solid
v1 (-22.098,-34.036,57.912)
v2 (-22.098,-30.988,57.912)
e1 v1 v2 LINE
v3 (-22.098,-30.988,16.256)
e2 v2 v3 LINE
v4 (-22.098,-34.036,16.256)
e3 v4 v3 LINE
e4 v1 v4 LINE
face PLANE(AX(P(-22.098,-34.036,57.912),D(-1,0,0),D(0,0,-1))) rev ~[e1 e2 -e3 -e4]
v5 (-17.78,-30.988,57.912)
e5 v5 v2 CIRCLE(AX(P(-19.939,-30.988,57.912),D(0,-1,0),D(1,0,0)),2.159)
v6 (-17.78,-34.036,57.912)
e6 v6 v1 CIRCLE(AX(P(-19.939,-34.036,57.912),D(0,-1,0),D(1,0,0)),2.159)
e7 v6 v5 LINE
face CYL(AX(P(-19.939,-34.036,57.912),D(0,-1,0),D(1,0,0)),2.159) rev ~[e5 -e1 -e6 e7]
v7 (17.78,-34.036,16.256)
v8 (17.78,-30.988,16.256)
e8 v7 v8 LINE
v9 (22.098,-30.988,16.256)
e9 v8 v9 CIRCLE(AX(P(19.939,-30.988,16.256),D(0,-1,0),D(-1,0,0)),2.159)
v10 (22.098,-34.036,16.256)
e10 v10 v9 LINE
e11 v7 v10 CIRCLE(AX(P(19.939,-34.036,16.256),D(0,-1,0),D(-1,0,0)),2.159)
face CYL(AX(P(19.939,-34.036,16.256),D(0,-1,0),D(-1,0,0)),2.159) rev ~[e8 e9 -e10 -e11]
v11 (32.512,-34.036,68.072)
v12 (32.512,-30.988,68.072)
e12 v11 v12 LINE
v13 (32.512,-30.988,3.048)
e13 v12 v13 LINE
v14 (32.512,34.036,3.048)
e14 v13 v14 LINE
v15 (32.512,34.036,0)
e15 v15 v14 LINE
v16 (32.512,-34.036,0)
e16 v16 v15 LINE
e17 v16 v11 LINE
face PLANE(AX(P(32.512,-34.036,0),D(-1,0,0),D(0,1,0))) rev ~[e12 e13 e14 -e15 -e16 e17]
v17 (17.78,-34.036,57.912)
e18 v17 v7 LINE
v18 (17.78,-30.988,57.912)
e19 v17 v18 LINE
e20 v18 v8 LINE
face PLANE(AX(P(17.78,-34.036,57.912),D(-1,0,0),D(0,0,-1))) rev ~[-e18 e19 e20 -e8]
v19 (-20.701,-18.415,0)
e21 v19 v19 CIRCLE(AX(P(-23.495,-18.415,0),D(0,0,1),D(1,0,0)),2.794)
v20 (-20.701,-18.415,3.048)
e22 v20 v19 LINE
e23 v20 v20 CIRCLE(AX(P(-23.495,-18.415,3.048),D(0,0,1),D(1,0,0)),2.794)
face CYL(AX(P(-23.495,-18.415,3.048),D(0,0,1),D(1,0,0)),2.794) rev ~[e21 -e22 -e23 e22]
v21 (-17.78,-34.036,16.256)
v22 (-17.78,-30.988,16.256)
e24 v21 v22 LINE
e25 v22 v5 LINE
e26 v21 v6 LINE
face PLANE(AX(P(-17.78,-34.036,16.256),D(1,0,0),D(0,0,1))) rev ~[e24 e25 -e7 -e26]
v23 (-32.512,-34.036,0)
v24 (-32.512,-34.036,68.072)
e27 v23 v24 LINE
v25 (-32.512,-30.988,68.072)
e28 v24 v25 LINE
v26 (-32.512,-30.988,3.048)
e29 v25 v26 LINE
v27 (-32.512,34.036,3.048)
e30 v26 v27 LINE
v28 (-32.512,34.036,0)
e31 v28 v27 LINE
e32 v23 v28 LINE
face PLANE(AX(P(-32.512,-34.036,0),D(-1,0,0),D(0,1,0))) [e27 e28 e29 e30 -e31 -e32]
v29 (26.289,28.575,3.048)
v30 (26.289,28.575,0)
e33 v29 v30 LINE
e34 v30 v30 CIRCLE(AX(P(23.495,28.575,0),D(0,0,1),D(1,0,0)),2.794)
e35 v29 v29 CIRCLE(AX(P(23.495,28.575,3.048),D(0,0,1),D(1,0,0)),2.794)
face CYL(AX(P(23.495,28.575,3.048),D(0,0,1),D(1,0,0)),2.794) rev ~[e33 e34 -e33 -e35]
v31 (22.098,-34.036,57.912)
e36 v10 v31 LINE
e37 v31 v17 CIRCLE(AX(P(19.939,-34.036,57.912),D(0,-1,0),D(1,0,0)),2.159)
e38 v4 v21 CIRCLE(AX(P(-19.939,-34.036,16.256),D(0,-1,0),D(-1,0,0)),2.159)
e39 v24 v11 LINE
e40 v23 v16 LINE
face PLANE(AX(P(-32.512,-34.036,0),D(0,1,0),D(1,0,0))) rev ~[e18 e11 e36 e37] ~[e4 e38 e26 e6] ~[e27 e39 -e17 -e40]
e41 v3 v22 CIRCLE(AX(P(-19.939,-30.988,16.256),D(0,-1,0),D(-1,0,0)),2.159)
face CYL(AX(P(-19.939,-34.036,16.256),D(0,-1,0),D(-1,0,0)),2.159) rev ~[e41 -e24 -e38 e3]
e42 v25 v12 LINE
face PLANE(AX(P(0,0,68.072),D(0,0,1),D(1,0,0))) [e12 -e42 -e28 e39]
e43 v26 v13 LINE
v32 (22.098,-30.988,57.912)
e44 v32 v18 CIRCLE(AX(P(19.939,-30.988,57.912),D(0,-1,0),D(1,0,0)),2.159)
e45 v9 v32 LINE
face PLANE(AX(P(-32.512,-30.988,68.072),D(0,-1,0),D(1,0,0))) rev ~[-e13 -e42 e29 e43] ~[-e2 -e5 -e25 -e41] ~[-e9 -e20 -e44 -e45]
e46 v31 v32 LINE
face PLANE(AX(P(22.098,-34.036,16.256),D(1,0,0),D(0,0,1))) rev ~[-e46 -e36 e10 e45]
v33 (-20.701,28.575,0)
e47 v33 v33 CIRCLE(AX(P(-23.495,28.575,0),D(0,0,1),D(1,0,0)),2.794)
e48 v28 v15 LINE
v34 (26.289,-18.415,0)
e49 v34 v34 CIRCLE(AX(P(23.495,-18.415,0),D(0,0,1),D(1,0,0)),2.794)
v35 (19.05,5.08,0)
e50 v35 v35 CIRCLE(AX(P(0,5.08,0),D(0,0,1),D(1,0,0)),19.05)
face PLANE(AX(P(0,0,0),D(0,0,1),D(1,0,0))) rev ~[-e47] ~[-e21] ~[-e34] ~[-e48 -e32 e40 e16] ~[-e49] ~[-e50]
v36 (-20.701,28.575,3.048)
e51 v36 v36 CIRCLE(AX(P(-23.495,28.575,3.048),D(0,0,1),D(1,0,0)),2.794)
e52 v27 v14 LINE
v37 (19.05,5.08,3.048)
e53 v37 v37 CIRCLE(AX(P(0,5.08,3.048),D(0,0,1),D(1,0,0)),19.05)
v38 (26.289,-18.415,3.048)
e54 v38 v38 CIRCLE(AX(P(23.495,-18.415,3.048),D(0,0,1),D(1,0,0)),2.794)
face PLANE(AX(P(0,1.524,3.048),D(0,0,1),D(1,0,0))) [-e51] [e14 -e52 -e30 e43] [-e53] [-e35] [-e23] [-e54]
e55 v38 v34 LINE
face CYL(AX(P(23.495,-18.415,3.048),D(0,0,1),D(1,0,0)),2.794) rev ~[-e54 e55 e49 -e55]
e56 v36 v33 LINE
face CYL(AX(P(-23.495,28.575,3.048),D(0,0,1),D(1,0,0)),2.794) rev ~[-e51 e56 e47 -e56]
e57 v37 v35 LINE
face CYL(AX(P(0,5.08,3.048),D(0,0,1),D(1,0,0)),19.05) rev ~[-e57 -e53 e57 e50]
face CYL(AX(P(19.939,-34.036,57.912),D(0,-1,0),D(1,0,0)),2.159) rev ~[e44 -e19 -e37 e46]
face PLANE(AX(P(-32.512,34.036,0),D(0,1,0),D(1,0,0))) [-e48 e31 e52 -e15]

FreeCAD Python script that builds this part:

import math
import FreeCAD as App
import Part
import Sketcher
Q = App.Units.Quantity

doc = App.newDocument("Part")
body = doc.addObject("PartDesign::Body", "Body")

sketch1 = body.newObject("Sketcher::SketchObject", "Sketch")
sketch1.AttachmentSupport = (doc.getObject("XY_Plane"), [""])
sketch1.MapMode = "FlatFace"
sketch1.addGeometry([
    Part.LineSegment(App.Vector(-33, 34, 0), App.Vector(-33, -34, 0)),
    Part.LineSegment(App.Vector(-33, -34, 0), App.Vector(33, -34, 0)),
    Part.LineSegment(App.Vector(33, -34, 0), App.Vector(33, 34, 0)),
    Part.LineSegment(App.Vector(33, 34, 0), App.Vector(-33, 34, 0)),
], False)
sketch1.addConstraint([
    Sketcher.Constraint("Coincident", 0, 2, 1, 1),
    Sketcher.Constraint("Coincident", 1, 2, 2, 1),
    Sketcher.Constraint("Coincident", 2, 2, 3, 1),
    Sketcher.Constraint("Coincident", 3, 2, 0, 1),
    Sketcher.Constraint("Vertical", 0),
    Sketcher.Constraint("Horizontal", 1),
    Sketcher.Constraint("Vertical", 2),
    Sketcher.Constraint("Horizontal", 3),
    Sketcher.Constraint("Symmetric", 0, 2, 2, 2, -1, 1),
    Sketcher.Constraint("DistanceX", 1, 1, 1, 2, Q("2.56 in")),
    Sketcher.Constraint("DistanceY", 0, 2, 0, 1, Q("2.68 in")),
])
pad1 = body.newObject("PartDesign::Pad", "Pad")
pad1.Profile = sketch1
pad1.Length = Q("2.68 in")

sketch2 = body.newObject("Sketcher::SketchObject", "Sketch001")
sketch2.AttachmentSupport = (doc.getObject("XY_Plane"), [""])
sketch2.MapMode = "FlatFace"
sketch2.AttachmentOffset = App.Placement(App.Vector(0, 0, 2.68 * 25.4), App.Rotation())
sketch2.addGeometry([
    Part.LineSegment(App.Vector(-33, 34, 0), App.Vector(-33, -31, 0)),
    Part.LineSegment(App.Vector(-33, -31, 0), App.Vector(33, -31, 0)),
    Part.LineSegment(App.Vector(33, -31, 0), App.Vector(33, 34, 0)),
    Part.LineSegment(App.Vector(33, 34, 0), App.Vector(-33, 34, 0)),
], False)
sketch2.addConstraint([
    Sketcher.Constraint("Coincident", 0, 2, 1, 1),
    Sketcher.Constraint("Coincident", 1, 2, 2, 1),
    Sketcher.Constraint("Coincident", 2, 2, 3, 1),
    Sketcher.Constraint("Coincident", 3, 2, 0, 1),
    Sketcher.Constraint("Vertical", 0),
    Sketcher.Constraint("Horizontal", 1),
    Sketcher.Constraint("Vertical", 2),
    Sketcher.Constraint("Horizontal", 3),
    Sketcher.Constraint("Equal", 3, 0),
    Sketcher.Constraint("DistanceX", 1, 1, 1, 2, Q("2.56 in")),
    Sketcher.Constraint("DistanceX", 0, 2, -1, 1, Q("1.28 in")),
    Sketcher.Constraint("DistanceY", 0, 2, -1, 1, Q("1.22 in")),
])
pocket1 = body.newObject("PartDesign::Pocket", "Pocket")
pocket1.Profile = sketch2
pocket1.Length = Q("2.56 in")

sketch3 = body.newObject("Sketcher::SketchObject", "Sketch002")
sketch3.AttachmentSupport = (doc.getObject("XY_Plane"), [""])
sketch3.MapMode = "FlatFace"
sketch3.AttachmentOffset = App.Placement(App.Vector(0, 0, 0.12 * 25.4), App.Rotation())
sketch3.addGeometry([
    Part.Circle(App.Vector(0, 5.1, 0), App.Vector(0, 0, 1), 19.1),
    Part.Circle(App.Vector(-23.5, 28.6, 0), App.Vector(0, 0, 1), 2.8),
    Part.Circle(App.Vector(23.5, 28.6, 0), App.Vector(0, 0, 1), 2.8),
    Part.Circle(App.Vector(23.5, -18.4, 0), App.Vector(0, 0, 1), 2.8),
    Part.Circle(App.Vector(-23.5, -18.4, 0), App.Vector(0, 0, 1), 2.8),
], False)
sketch3.addConstraint([
    Sketcher.Constraint("Equal", 1, 2),
    Sketcher.Constraint("Equal", 2, 3),
    Sketcher.Constraint("Equal", 3, 4),
    Sketcher.Constraint("Symmetric", 1, 3, 2, 3, -2),
    Sketcher.Constraint("Symmetric", 3, 3, 4, 3, -2),
    Sketcher.Constraint("PointOnObject", 0, 3, -2),
    Sketcher.Constraint("Vertical", 2, 3, 3, 3),
    Sketcher.Constraint("Diameter", 0, Q("1.5 in")),
    Sketcher.Constraint("Diameter", 1, Q("0.22 in")),
    Sketcher.Constraint("DistanceY", -1, 1, 0, 3, Q("0.2 in")),
    Sketcher.Constraint("DistanceX", 1, 3, 2, 3, Q("1.85 in")),
    Sketcher.Constraint("DistanceY", 3, 3, 2, 3, Q("1.85 in")),
    Sketcher.Constraint("DistanceY", -1, 1, 1, 3, Q("1.125 in")),
])
pocket2 = body.newObject("PartDesign::Pocket", "Pocket001")
pocket2.Profile = sketch3
pocket2.Type = "ThroughAll"

sketch4 = body.newObject("Sketcher::SketchObject", "Sketch003")
sketch4.AttachmentSupport = (doc.getObject("XZ_Plane"), [""])
sketch4.MapMode = "FlatFace"
sketch4.AttachmentOffset = App.Placement(App.Vector(0, 0, 1.34 * 25.4), App.Rotation())
sketch4.addGeometry([
    Part.ArcOfCircle(Part.Circle(App.Vector(-19.9, 57.9, 0), App.Vector(0, 0, 1), 2.2), math.radians(0), math.radians(180)),
    Part.LineSegment(App.Vector(-22.1, 57.9, 0), App.Vector(-22.1, 16.3, 0)),
    Part.ArcOfCircle(Part.Circle(App.Vector(-19.9, 16.3, 0), App.Vector(0, 0, 1), 2.2), math.radians(180), math.radians(360)),
    Part.LineSegment(App.Vector(-17.8, 16.3, 0), App.Vector(-17.8, 57.9, 0)),
    Part.ArcOfCircle(Part.Circle(App.Vector(19.9, 57.9, 0), App.Vector(0, 0, 1), 2.2), math.radians(0), math.radians(180)),
    Part.LineSegment(App.Vector(17.8, 57.9, 0), App.Vector(17.8, 16.3, 0)),
    Part.ArcOfCircle(Part.Circle(App.Vector(19.9, 16.3, 0), App.Vector(0, 0, 1), 2.2), math.radians(180), math.radians(360)),
    Part.LineSegment(App.Vector(22.1, 16.3, 0), App.Vector(22.1, 57.9, 0)),
], False)
sketch4.addConstraint([
    Sketcher.Constraint("Tangent", 0, 2, 1, 1),
    Sketcher.Constraint("Tangent", 1, 2, 2, 1),
    Sketcher.Constraint("Tangent", 2, 2, 3, 1),
    Sketcher.Constraint("Tangent", 3, 2, 0, 1),
    Sketcher.Constraint("Tangent", 4, 2, 5, 1),
    Sketcher.Constraint("Tangent", 5, 2, 6, 1),
    Sketcher.Constraint("Tangent", 6, 2, 7, 1),
    Sketcher.Constraint("Tangent", 7, 2, 4, 1),
    Sketcher.Constraint("Vertical", 1),
    Sketcher.Constraint("Vertical", 3),
    Sketcher.Constraint("Vertical", 5),
    Sketcher.Constraint("Vertical", 7),
    Sketcher.Constraint("Equal", 2, 4),
    Sketcher.Constraint("Symmetric", 0, 3, 4, 3, -2),
    Sketcher.Constraint("Horizontal", 2, 3, 6, 3),
    Sketcher.Constraint("Radius", 0, Q("0.085 in")),
    Sketcher.Constraint("DistanceY", 1, 2, 1, 1, Q("1.64 in")),
    Sketcher.Constraint("DistanceX", 2, 2, -1, 1, Q("0.7 in")),
    Sketcher.Constraint("DistanceY", -1, 1, 0, 3, Q("2.28 in")),
])
pocket3 = body.newObject("PartDesign::Pocket", "Pocket002")
pocket3.Profile = sketch4
pocket3.Type = "ThroughAll"

doc.recompute()
